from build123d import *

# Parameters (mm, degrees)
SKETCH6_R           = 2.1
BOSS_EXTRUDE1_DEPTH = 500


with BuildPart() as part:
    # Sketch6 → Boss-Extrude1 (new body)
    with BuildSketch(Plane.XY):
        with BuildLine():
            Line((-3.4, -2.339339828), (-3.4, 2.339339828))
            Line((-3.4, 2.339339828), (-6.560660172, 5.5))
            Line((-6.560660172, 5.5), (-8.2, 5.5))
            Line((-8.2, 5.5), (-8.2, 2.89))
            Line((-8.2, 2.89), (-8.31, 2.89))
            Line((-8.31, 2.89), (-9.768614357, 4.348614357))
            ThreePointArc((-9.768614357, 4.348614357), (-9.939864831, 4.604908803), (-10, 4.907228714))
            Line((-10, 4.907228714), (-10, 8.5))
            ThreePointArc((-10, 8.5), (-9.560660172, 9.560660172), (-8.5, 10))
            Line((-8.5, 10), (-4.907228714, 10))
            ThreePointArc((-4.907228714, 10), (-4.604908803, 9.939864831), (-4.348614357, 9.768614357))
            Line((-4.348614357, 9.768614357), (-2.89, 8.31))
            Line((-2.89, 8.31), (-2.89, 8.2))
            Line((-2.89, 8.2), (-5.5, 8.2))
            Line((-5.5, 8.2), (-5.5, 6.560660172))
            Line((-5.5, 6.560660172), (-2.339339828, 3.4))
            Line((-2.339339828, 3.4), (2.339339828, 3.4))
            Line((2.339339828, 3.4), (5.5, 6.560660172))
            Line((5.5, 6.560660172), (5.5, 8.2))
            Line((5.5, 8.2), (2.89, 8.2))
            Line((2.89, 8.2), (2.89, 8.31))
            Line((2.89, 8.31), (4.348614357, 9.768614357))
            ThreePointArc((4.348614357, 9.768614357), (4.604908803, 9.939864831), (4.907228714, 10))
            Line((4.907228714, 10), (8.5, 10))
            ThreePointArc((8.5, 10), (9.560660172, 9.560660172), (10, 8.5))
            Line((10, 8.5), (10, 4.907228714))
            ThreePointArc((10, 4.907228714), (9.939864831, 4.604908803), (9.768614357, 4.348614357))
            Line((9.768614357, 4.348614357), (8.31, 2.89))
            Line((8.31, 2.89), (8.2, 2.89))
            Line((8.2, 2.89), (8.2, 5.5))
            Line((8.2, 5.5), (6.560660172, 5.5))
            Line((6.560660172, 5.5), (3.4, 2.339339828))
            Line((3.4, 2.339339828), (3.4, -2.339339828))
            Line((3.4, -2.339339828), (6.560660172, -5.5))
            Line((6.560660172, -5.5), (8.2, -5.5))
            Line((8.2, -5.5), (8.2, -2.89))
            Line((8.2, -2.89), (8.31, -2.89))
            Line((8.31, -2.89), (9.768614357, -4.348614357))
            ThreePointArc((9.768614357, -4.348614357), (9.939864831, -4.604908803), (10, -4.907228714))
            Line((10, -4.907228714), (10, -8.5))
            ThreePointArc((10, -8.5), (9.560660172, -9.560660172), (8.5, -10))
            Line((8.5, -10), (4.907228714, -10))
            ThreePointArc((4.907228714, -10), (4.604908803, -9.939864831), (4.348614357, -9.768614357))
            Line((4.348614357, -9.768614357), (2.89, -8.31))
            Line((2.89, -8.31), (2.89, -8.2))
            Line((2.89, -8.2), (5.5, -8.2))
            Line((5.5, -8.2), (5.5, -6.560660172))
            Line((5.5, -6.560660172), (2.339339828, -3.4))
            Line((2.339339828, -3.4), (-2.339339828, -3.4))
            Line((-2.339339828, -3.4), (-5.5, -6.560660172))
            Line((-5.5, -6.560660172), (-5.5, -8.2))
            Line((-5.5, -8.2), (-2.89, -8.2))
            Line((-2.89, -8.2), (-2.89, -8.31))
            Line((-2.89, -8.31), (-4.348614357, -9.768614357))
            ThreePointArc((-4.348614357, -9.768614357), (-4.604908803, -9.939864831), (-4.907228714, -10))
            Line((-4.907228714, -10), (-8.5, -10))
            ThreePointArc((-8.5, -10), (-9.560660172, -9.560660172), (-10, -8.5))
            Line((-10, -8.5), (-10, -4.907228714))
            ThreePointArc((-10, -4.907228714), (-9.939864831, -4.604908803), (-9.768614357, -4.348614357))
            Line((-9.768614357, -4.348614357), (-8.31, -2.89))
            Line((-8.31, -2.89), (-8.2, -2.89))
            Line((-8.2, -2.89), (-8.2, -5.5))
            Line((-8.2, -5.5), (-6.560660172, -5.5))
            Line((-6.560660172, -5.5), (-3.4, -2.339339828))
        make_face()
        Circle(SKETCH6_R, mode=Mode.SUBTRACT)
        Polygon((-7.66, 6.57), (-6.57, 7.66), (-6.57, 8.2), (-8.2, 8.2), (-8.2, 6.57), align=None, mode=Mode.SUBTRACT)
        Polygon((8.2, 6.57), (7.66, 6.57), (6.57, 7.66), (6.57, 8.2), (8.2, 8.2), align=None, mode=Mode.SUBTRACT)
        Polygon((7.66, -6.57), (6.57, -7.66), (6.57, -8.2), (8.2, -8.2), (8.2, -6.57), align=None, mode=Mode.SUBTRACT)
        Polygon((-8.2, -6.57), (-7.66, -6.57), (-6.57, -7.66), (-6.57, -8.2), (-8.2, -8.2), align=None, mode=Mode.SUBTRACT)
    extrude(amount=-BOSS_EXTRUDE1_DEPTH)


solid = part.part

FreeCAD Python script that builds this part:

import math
import FreeCAD as App
import Part
import Sketcher
from FreeCAD import Vector
Q = App.Units.Quantity


def add_polygon(sketch, points):
    """Adds a closed chain of lines whose ends are joined by coincident constraints."""
    first, n = sketch.GeometryCount, len(points)
    for a, b in zip(points, points[1:] + points[:1]):
        sketch.addGeometry(Part.LineSegment(App.Vector(*a, 0), App.Vector(*b, 0)), False)
    for i in range(n):
        sketch.addConstraint(Sketcher.Constraint("Coincident", first + i, 2, first + (i + 1) % n, 1))

doc = App.newDocument("Part")
body = doc.addObject("PartDesign::Body", "Body")

# Sketch on XY plane
sketch1 = body.newObject("Sketcher::SketchObject", "Sketch")
sketch1.AttachmentSupport = (doc.getObject("XY_Plane"), [""])
sketch1.MapMode = "FlatFace"
sketch1.addGeometry(Part.LineSegment(Vector(-3.4, 2.34, 0), Vector(-3.4, -2.34, 0)), False)  # 0
sketch1.addGeometry(Part.LineSegment(Vector(-3.4, -2.34, 0), Vector(-6.56, -5.5, 0)), False)  # 1
sketch1.addGeometry(Part.LineSegment(Vector(-6.56, -5.5, 0), Vector(-8.2, -5.5, 0)), False)  # 2
sketch1.addGeometry(Part.LineSegment(Vector(-8.2, -5.5, 0), Vector(-8.2, -2.89, 0)), False)  # 3
sketch1.addGeometry(Part.LineSegment(Vector(-8.2, -2.89, 0), Vector(-8.31, -2.89, 0)), False)  # 4
sketch1.addGeometry(Part.LineSegment(Vector(-8.31, -2.89, 0), Vector(-9.77, -4.35, 0)), False)  # 5
sketch1.addGeometry(Part.ArcOfCircle(Part.Circle(Vector(-9.21, -4.91, 0), Vector(0, 0, 1), 0.79), math.radians(135), math.radians(180)), False)  # 6
sketch1.addGeometry(Part.LineSegment(Vector(-10, -4.91, 0), Vector(-10, -8.5, 0)), False)  # 7
sketch1.addGeometry(Part.ArcOfCircle(Part.Circle(Vector(-8.5, -8.5, 0), Vector(0, 0, 1), 1.5), math.radians(180), math.radians(270)), False)  # 8
sketch1.addGeometry(Part.LineSegment(Vector(-8.5, -10, 0), Vector(-4.91, -10, 0)), False)  # 9
sketch1.addGeometry(Part.ArcOfCircle(Part.Circle(Vector(-4.91, -9.21, 0), Vector(0, 0, 1), 0.79), math.radians(-90), math.radians(-45)), False)  # 10
sketch1.addGeometry(Part.LineSegment(Vector(-4.35, -9.77, 0), Vector(-2.89, -8.31, 0)), False)  # 11
sketch1.addGeometry(Part.LineSegment(Vector(-2.89, -8.31, 0), Vector(-2.89, -8.2, 0)), False)  # 12
sketch1.addGeometry(Part.LineSegment(Vector(-2.89, -8.2, 0), Vector(-5.5, -8.2, 0)), False)  # 13
sketch1.addGeometry(Part.LineSegment(Vector(-5.5, -8.2, 0), Vector(-5.5, -6.56, 0)), False)  # 14
sketch1.addGeometry(Part.LineSegment(Vector(-5.5, -6.56, 0), Vector(-2.34, -3.4, 0)), False)  # 15
sketch1.addGeometry(Part.LineSegment(Vector(-2.34, -3.4, 0), Vector(2.34, -3.4, 0)), False)  # 16
sketch1.addGeometry(Part.LineSegment(Vector(2.34, -3.4, 0), Vector(5.5, -6.56, 0)), False)  # 17
sketch1.addGeometry(Part.LineSegment(Vector(5.5, -6.56, 0), Vector(5.5, -8.2, 0)), False)  # 18
sketch1.addGeometry(Part.LineSegment(Vector(5.5, -8.2, 0), Vector(2.89, -8.2, 0)), False)  # 19
sketch1.addGeometry(Part.LineSegment(Vector(2.89, -8.2, 0), Vector(2.89, -8.31, 0)), False)  # 20
sketch1.addGeometry(Part.LineSegment(Vector(2.89, -8.31, 0), Vector(4.35, -9.77, 0)), False)  # 21
sketch1.addGeometry(Part.ArcOfCircle(Part.Circle(Vector(4.91, -9.21, 0), Vector(0, 0, 1), 0.79), math.radians(-135), math.radians(-90)), False)  # 22
sketch1.addGeometry(Part.LineSegment(Vector(4.91, -10, 0), Vector(8.5, -10, 0)), False)  # 23
sketch1.addGeometry(Part.ArcOfCircle(Part.Circle(Vector(8.5, -8.5, 0), Vector(0, 0, 1), 1.5), math.radians(-90), math.radians(0)), False)  # 24
sketch1.addGeometry(Part.LineSegment(Vector(10, -8.5, 0), Vector(10, -4.91, 0)), False)  # 25
sketch1.addGeometry(Part.ArcOfCircle(Part.Circle(Vector(9.21, -4.91, 0), Vector(0, 0, 1), 0.79), math.radians(0), math.radians(45)), False)  # 26
sketch1.addGeometry(Part.LineSegment(Vector(9.77, -4.35, 0), Vector(8.31, -2.89, 0)), False)  # 27
sketch1.addGeometry(Part.LineSegment(Vector(8.31, -2.89, 0), Vector(8.2, -2.89, 0)), False)  # 28
sketch1.addGeometry(Part.LineSegment(Vector(8.2, -2.89, 0), Vector(8.2, -5.5, 0)), False)  # 29
sketch1.addGeometry(Part.LineSegment(Vector(8.2, -5.5, 0), Vector(6.56, -5.5, 0)), False)  # 30
sketch1.addGeometry(Part.LineSegment(Vector(6.56, -5.5, 0), Vector(3.4, -2.34, 0)), False)  # 31
sketch1.addGeometry(Part.LineSegment(Vector(3.4, -2.34, 0), Vector(3.4, 2.34, 0)), False)  # 32
sketch1.addGeometry(Part.LineSegment(Vector(3.4, 2.34, 0), Vector(6.56, 5.5, 0)), False)  # 33
sketch1.addGeometry(Part.LineSegment(Vector(6.56, 5.5, 0), Vector(8.2, 5.5, 0)), False)  # 34
sketch1.addGeometry(Part.LineSegment(Vector(8.2, 5.5, 0), Vector(8.2, 2.89, 0)), False)  # 35
sketch1.addGeometry(Part.LineSegment(Vector(8.2, 2.89, 0), Vector(8.31, 2.89, 0)), False)  # 36
sketch1.addGeometry(Part.LineSegment(Vector(8.31, 2.89, 0), Vector(9.77, 4.35, 0)), False)  # 37
sketch1.addGeometry(Part.ArcOfCircle(Part.Circle(Vector(9.21, 4.91, 0), Vector(0, 0, 1), 0.79), math.radians(-45), math.radians(0)), False)  # 38
sketch1.addGeometry(Part.LineSegment(Vector(10, 4.91, 0), Vector(10, 8.5, 0)), False)  # 39
sketch1.addGeometry(Part.ArcOfCircle(Part.Circle(Vector(8.5, 8.5, 0), Vector(0, 0, 1), 1.5), math.radians(0), math.radians(90)), False)  # 40
sketch1.addGeometry(Part.LineSegment(Vector(8.5, 10, 0), Vector(4.91, 10, 0)), False)  # 41
sketch1.addGeometry(Part.ArcOfCircle(Part.Circle(Vector(4.91, 9.21, 0), Vector(0, 0, 1), 0.79), math.radians(90), math.radians(135)), False)  # 42
sketch1.addGeometry(Part.LineSegment(Vector(4.35, 9.77, 0), Vector(2.89, 8.31, 0)), False)  # 43
sketch1.addGeometry(Part.LineSegment(Vector(2.89, 8.31, 0), Vector(2.89, 8.2, 0)), False)  # 44
sketch1.addGeometry(Part.LineSegment(Vector(2.89, 8.2, 0), Vector(5.5, 8.2, 0)), False)  # 45
sketch1.addGeometry(Part.LineSegment(Vector(5.5, 8.2, 0), Vector(5.5, 6.56, 0)), False)  # 46
sketch1.addGeometry(Part.LineSegment(Vector(5.5, 6.56, 0), Vector(2.34, 3.4, 0)), False)  # 47
sketch1.addGeometry(Part.LineSegment(Vector(2.34, 3.4, 0), Vector(-2.34, 3.4, 0)), False)  # 48
sketch1.addGeometry(Part.LineSegment(Vector(-2.34, 3.4, 0), Vector(-5.5, 6.56, 0)), False)  # 49
sketch1.addGeometry(Part.LineSegment(Vector(-5.5, 6.56, 0), Vector(-5.5, 8.2, 0)), False)  # 50
sketch1.addGeometry(Part.LineSegment(Vector(-5.5, 8.2, 0), Vector(-2.89, 8.2, 0)), False)  # 51
sketch1.addGeometry(Part.LineSegment(Vector(-2.89, 8.2, 0), Vector(-2.89, 8.31, 0)), False)  # 52
sketch1.addGeometry(Part.LineSegment(Vector(-2.89, 8.31, 0), Vector(-4.35, 9.77, 0)), False)  # 53
sketch1.addGeometry(Part.ArcOfCircle(Part.Circle(Vector(-4.91, 9.21, 0), Vector(0, 0, 1), 0.79), math.radians(45), math.radians(90)), False)  # 54
sketch1.addGeometry(Part.LineSegment(Vector(-4.91, 10, 0), Vector(-8.5, 10, 0)), False)  # 55
sketch1.addGeometry(Part.ArcOfCircle(Part.Circle(Vector(-8.5, 8.5, 0), Vector(0, 0, 1), 1.5), math.radians(90), math.radians(180)), False)  # 56
sketch1.addGeometry(Part.LineSegment(Vector(-10, 8.5, 0), Vector(-10, 4.91, 0)), False)  # 57
sketch1.addGeometry(Part.ArcOfCircle(Part.Circle(Vector(-9.21, 4.91, 0), Vector(0, 0, 1), 0.79), math.radians(180), math.radians(225)), False)  # 58
sketch1.addGeometry(Part.LineSegment(Vector(-9.77, 4.35, 0), Vector(-8.31, 2.89, 0)), False)  # 59
sketch1.addGeometry(Part.LineSegment(Vector(-8.31, 2.89, 0), Vector(-8.2, 2.89, 0)), False)  # 60
sketch1.addGeometry(Part.LineSegment(Vector(-8.2, 2.89, 0), Vector(-8.2, 5.5, 0)), False)  # 61
sketch1.addGeometry(Part.LineSegment(Vector(-8.2, 5.5, 0), Vector(-6.56, 5.5, 0)), False)  # 62
sketch1.addGeometry(Part.LineSegment(Vector(-6.56, 5.5, 0), Vector(-3.4, 2.34, 0)), False)  # 63
add_polygon(sketch1, [(7.66, -6.57), (8.2, -6.57), (8.2, -8.2), (6.57, -8.2), (6.57, -7.66)])  # lines 64-68
add_polygon(sketch1, [(-8.2, -6.57), (-7.66, -6.57), (-6.57, -7.66), (-6.57, -8.2), (-8.2, -8.2)])  # lines 69-73
add_polygon(sketch1, [(8.2, 6.57), (7.66, 6.57), (6.57, 7.66), (6.57, 8.2), (8.2, 8.2)])  # lines 74-78
sketch1.addGeometry(Part.Circle(Vector(0, 0, 0), Vector(0, 0, 1), 2.1), False)  # 79
add_polygon(sketch1, [(-7.66, 6.57), (-8.2, 6.57), (-8.2, 8.2), (-6.57, 8.2), (-6.57, 7.66)])  # lines 80-84
sketch1.addConstraint([
    Sketcher.Constraint("Coincident", 0, 2, 1, 1),
    Sketcher.Constraint("Coincident", 1, 2, 2, 1),
    Sketcher.Constraint("Coincident", 2, 2, 3, 1),
    Sketcher.Constraint("Coincident", 3, 2, 4, 1),
    Sketcher.Constraint("Coincident", 4, 2, 5, 1),
    Sketcher.Constraint("Tangent", 5, 2, 6, 1),
    Sketcher.Constraint("Tangent", 6, 2, 7, 1),
    Sketcher.Constraint("Tangent", 7, 2, 8, 1),
    Sketcher.Constraint("Tangent", 8, 2, 9, 1),
    Sketcher.Constraint("Tangent", 9, 2, 10, 1),
    Sketcher.Constraint("Tangent", 10, 2, 11, 1),
    Sketcher.Constraint("Coincident", 11, 2, 12, 1),
    Sketcher.Constraint("Coincident", 12, 2, 13, 1),
    Sketcher.Constraint("Coincident", 13, 2, 14, 1),
    Sketcher.Constraint("Coincident", 14, 2, 15, 1),
    Sketcher.Constraint("Coincident", 15, 2, 16, 1),
    Sketcher.Constraint("Coincident", 16, 2, 17, 1),
    Sketcher.Constraint("Coincident", 17, 2, 18, 1),
    Sketcher.Constraint("Coincident", 18, 2, 19, 1),
    Sketcher.Constraint("Coincident", 19, 2, 20, 1),
    Sketcher.Constraint("Coincident", 20, 2, 21, 1),
    Sketcher.Constraint("Tangent", 21, 2, 22, 1),
    Sketcher.Constraint("Tangent", 22, 2, 23, 1),
    Sketcher.Constraint("Tangent", 23, 2, 24, 1),
    Sketcher.Constraint("Tangent", 24, 2, 25, 1),
    Sketcher.Constraint("Tangent", 25, 2, 26, 1),
    Sketcher.Constraint("Tangent", 26, 2, 27, 1),
    Sketcher.Constraint("Coincident", 27, 2, 28, 1),
    Sketcher.Constraint("Coincident", 28, 2, 29, 1),
    Sketcher.Constraint("Coincident", 29, 2, 30, 1),
    Sketcher.Constraint("Coincident", 30, 2, 31, 1),
    Sketcher.Constraint("Coincident", 31, 2, 32, 1),
    Sketcher.Constraint("Coincident", 32, 2, 33, 1),
    Sketcher.Constraint("Coincident", 33, 2, 34, 1),
    Sketcher.Constraint("Coincident", 34, 2, 35, 1),
    Sketcher.Constraint("Coincident", 35, 2, 36, 1),
    Sketcher.Constraint("Coincident", 36, 2, 37, 1),
    Sketcher.Constraint("Tangent", 37, 2, 38, 1),
    Sketcher.Constraint("Tangent", 38, 2, 39, 1),
    Sketcher.Constraint("Tangent", 39, 2, 40, 1),
    Sketcher.Constraint("Tangent", 40, 2, 41, 1),
    Sketcher.Constraint("Tangent", 41, 2, 42, 1),
    Sketcher.Constraint("Tangent", 42, 2, 43, 1),
    Sketcher.Constraint("Coincident", 43, 2, 44, 1),
    Sketcher.Constraint("Coincident", 44, 2, 45, 1),
    Sketcher.Constraint("Coincident", 45, 2, 46, 1),
    Sketcher.Constraint("Coincident", 46, 2, 47, 1),
    Sketcher.Constraint("Coincident", 47, 2, 48, 1),
    Sketcher.Constraint("Coincident", 48, 2, 49, 1),
    Sketcher.Constraint("Coincident", 49, 2, 50, 1),
    Sketcher.Constraint("Coincident", 50, 2, 51, 1),
    Sketcher.Constraint("Coincident", 51, 2, 52, 1),
    Sketcher.Constraint("Coincident", 52, 2, 53, 1),
    Sketcher.Constraint("Tangent", 53, 2, 54, 1),
    Sketcher.Constraint("Tangent", 54, 2, 55, 1),
    Sketcher.Constraint("Tangent", 55, 2, 56, 1),
    Sketcher.Constraint("Tangent", 56, 2, 57, 1),
    Sketcher.Constraint("Tangent", 57, 2, 58, 1),
    Sketcher.Constraint("Tangent", 58, 2, 59, 1),
    Sketcher.Constraint("Coincident", 59, 2, 60, 1),
    Sketcher.Constraint("Coincident", 60, 2, 61, 1),
    Sketcher.Constraint("Coincident", 61, 2, 62, 1),
    Sketcher.Constraint("Coincident", 62, 2, 63, 1),
    Sketcher.Constraint("Coincident", 63, 2, 0, 1),
    Sketcher.Constraint("Vertical", 0),
    Sketcher.Constraint("Horizontal", 2),
    Sketcher.Constraint("Vertical", 3),
    Sketcher.Constraint("Horizontal", 4),
    Sketcher.Constraint("Vertical", 7),
    Sketcher.Constraint("Horizontal", 9),
    Sketcher.Constraint("Vertical", 12),
    Sketcher.Constraint("Horizontal", 13),
    Sketcher.Constraint("Vertical", 14),
    Sketcher.Constraint("Horizontal", 16),
    Sketcher.Constraint("Vertical", 18),
    Sketcher.Constraint("Horizontal", 19),
    Sketcher.Constraint("Vertical", 20),
    Sketcher.Constraint("Horizontal", 23),
    Sketcher.Constraint("Vertical", 25),
    Sketcher.Constraint("Horizontal", 28),
    Sketcher.Constraint("Vertical", 29),
    Sketcher.Constraint("Horizontal", 30),
    Sketcher.Constraint("Vertical", 32),
    Sketcher.Constraint("Horizontal", 34),
    Sketcher.Constraint("Vertical", 35),
    Sketcher.Constraint("Horizontal", 36),
    Sketcher.Constraint("Vertical", 39),
    Sketcher.Constraint("Horizontal", 41),
    Sketcher.Constraint("Vertical", 44),
    Sketcher.Constraint("Horizontal", 45),
    Sketcher.Constraint("Vertical", 46),
    Sketcher.Constraint("Horizontal", 48),
    Sketcher.Constraint("Vertical", 50),
    Sketcher.Constraint("Horizontal", 51),
    Sketcher.Constraint("Vertical", 52),
    Sketcher.Constraint("Horizontal", 55),
    Sketcher.Constraint("Vertical", 57),
    Sketcher.Constraint("Horizontal", 60),
    Sketcher.Constraint("Vertical", 61),
    Sketcher.Constraint("Horizontal", 62),
    Sketcher.Constraint("Horizontal", 64),
    Sketcher.Constraint("Vertical", 65),
    Sketcher.Constraint("Horizontal", 66),
    Sketcher.Constraint("Vertical", 67),
    Sketcher.Constraint("Horizontal", 69),
    Sketcher.Constraint("Vertical", 71),
    Sketcher.Constraint("Horizontal", 72),
    Sketcher.Constraint("Vertical", 73),
    Sketcher.Constraint("Horizontal", 74),
    Sketcher.Constraint("Vertical", 76),
    Sketcher.Constraint("Horizontal", 77),
    Sketcher.Constraint("Vertical", 78),
    Sketcher.Constraint("Horizontal", 80),
    Sketcher.Constraint("Vertical", 81),
    Sketcher.Constraint("Horizontal", 82),
    Sketcher.Constraint("Vertical", 83),
    Sketcher.Constraint("Coincident", 79, 3, -1, 1),
    Sketcher.Constraint("Equal", 6, 10),
    Sketcher.Constraint("Equal", 10, 22),
    Sketcher.Constraint("Equal", 8, 24),
    Sketcher.Constraint("Equal", 22, 26),
    Sketcher.Constraint("Equal", 26, 38),
    Sketcher.Constraint("Equal", 24, 40),
    Sketcher.Constraint("Equal", 38, 42),
    Sketcher.Constraint("Equal", 42, 54),
    Sketcher.Constraint("Equal", 40, 56),
    Sketcher.Constraint("Equal", 54, 58),
    Sketcher.Constraint("Symmetric", 6, 3, 38, 3, -1, 1),
    Sketcher.Constraint("Symmetric", 10, 3, 42, 3, -1, 1),
    Sketcher.Constraint("Symmetric", 22, 3, 54, 3, -1, 1),
    Sketcher.Constraint("Symmetric", 26, 3, 58, 3, -1, 1),
    Sketcher.Constraint("Symmetric", 0, 2, 32, 2, -1, 1),
    Sketcher.Constraint("Symmetric", 1, 2, 33, 2, -1, 1),
    Sketcher.Constraint("Symmetric", 3, 2, 35, 2, -1, 1),
    Sketcher.Constraint("Symmetric", 11, 2, 43, 2, -1, 1),
    Sketcher.Constraint("Symmetric", 13, 2, 45, 2, -1, 1),
    Sketcher.Constraint("Symmetric", 15, 2, 47, 2, -1, 1),
    Sketcher.Constraint("Symmetric", 17, 2, 49, 2, -1, 1),
    Sketcher.Constraint("Symmetric", 19, 2, 51, 2, -1, 1),
    Sketcher.Constraint("Symmetric", 27, 2, 59, 2, -1, 1),
    Sketcher.Constraint("Symmetric", 29, 2, 61, 2, -1, 1),
    Sketcher.Constraint("Symmetric", 69, 2, 74, 2, -1, 1),
    Sketcher.Constraint("Symmetric", 70, 2, 75, 2, -1, 1),
    Sketcher.Constraint("Symmetric", 72, 2, 77, 2, -1, 1),
    Sketcher.Constraint("Symmetric", 64, 2, 80, 2, -1, 1),
    Sketcher.Constraint("Symmetric", 66, 2, 82, 2, -1, 1),
    Sketcher.Constraint("Symmetric", 10, 3, 22, 3, -2),
    Sketcher.Constraint("Symmetric", 6, 3, 26, 3, -2),
    Sketcher.Constraint("Symmetric", 14, 2, 17, 2, -2),
    Sketcher.Constraint("Symmetric", 12, 2, 19, 2, -2),
    Sketcher.Constraint("Symmetric", 4, 2, 27, 2, -2),
    Sketcher.Constraint("Symmetric", 2, 2, 29, 2, -2),
    Sketcher.Constraint("Symmetric", 68, 2, 69, 2, -2),
    Sketcher.Constraint("Symmetric", 67, 2, 70, 2, -2),
    Sketcher.Constraint("Symmetric", 65, 2, 72, 2, -2),
    Sketcher.Constraint("Parallel", 1, 5),
    Sketcher.Constraint("Parallel", 5, 11),
    Sketcher.Constraint("Parallel", 11, 15),
    Sketcher.Constraint("Perpendicular", 15, 17),
    Sketcher.Constraint("Parallel", 17, 21),
    Sketcher.Constraint("Parallel", 21, 27),
    Sketcher.Constraint("Parallel", 27, 31),
    Sketcher.Constraint("Parallel", 33, 37),
    Sketcher.Constraint("Parallel", 43, 47),
    Sketcher.Constraint("Perpendicular", 47, 49),
    Sketcher.Constraint("Parallel", 49, 53),
    Sketcher.Constraint("Parallel", 59, 63),
    Sketcher.Constraint("Perpendicular", 63, 68),
    Sketcher.Constraint("Perpendicular", 75, 84),
    Sketcher.Constraint("Horizontal", 0, 2, 31, 2),
    Sketcher.Constraint("Horizontal", 32, 2, 63, 2),
    Sketcher.Constraint("Horizontal", 19, 2, 65, 2),
    Sketcher.Constraint("Horizontal", 75, 2, 83, 2),
    Sketcher.Constraint("Vertical", 35, 2, 64, 2),
    Sketcher.Constraint("Equal", 48, 0),
    Sketcher.Constraint("Equal", 51, 3),
    Sketcher.Constraint("Equal", 55, 7),
    Sketcher.Constraint("Equal", 60, 12),
    Sketcher.Constraint("Equal", 62, 14),
    Sketcher.Constraint("Equal", 82, 65),
    Sketcher.Constraint("Equal", 5, 11),
    Sketcher.Constraint("Equal", 1, 15),
    Sketcher.Constraint("Diameter", 79, Q("4.2 mm")),
    Sketcher.Constraint("Radius", 8, Q("1.5 mm")),
    Sketcher.Constraint("Radius", 6, Q("0.79 mm")),
    Sketcher.Constraint("DistanceX", 6, 2, -1, 1, Q("10 mm")),
    Sketcher.Constraint("DistanceX", 4, 2, 4, 1, Q("0.11 mm")),
    Sketcher.Constraint("DistanceX", 13, 2, 13, 1, Q("2.61 mm")),
    Sketcher.Constraint("DistanceX", 64, 1, 64, 2, Q("0.54 mm")),
    Sketcher.Constraint("DistanceX", 66, 2, 66, 1, Q("1.63 mm")),
    Sketcher.Constraint("DistanceX", 0, 2, -1, 1, Q("3.4 mm")),
    Sketcher.Constraint("DistanceY", 1, 2, -1, 1, Q("5.5 mm")),
    Sketcher.Constraint("DistanceX", 2, 2, -1, 1, Q("8.2 mm")),
    Sketcher.Constraint("DistanceX", 2, 2, 2, 1, Q("1.63934 mm")),
])
pad1 = body.newObject("PartDesign::Pad", "Pad")
pad1.Profile = sketch1
pad1.Length = 500
pad1.Reversed = True

doc.recompute()
